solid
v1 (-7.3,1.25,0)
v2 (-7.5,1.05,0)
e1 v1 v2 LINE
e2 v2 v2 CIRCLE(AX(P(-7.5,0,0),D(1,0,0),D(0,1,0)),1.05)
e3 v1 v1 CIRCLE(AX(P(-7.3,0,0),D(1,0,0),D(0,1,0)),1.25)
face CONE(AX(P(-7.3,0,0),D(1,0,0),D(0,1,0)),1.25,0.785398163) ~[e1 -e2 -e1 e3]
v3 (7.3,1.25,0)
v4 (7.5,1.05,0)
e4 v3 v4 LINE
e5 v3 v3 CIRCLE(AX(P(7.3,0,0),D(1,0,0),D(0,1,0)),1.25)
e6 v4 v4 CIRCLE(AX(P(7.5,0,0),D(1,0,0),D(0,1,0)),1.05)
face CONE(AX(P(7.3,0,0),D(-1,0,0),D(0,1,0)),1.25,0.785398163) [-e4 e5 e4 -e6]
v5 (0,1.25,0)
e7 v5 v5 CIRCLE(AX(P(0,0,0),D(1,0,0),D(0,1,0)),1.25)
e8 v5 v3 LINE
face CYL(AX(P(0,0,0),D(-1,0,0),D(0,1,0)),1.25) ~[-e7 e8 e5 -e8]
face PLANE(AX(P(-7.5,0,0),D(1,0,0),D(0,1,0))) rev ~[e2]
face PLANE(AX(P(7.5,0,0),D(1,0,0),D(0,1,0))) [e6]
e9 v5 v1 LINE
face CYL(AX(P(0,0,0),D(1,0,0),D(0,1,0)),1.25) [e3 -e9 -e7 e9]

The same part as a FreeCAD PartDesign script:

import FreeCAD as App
import Part
import Sketcher
Q = App.Units.Quantity


def edges_at(feature, points):
    """Names of the edges that pass closest to the given points."""
    edges = feature.Shape.Edges
    near = lambda p: min(range(len(edges)), key=lambda i: edges[i].distToShape(Part.Vertex(*p))[0])
    return sorted({f"Edge{near(p) + 1}" for p in points})

doc = App.newDocument("Part")
params = doc.addObject("Spreadsheet::Sheet", "Params")
for row, (alias, value) in enumerate([
    ("sketch1_diameter", "2.5 mm"),
    ("pad1_length", "15 mm"),
    ("chamfer_size", "0.2 mm"),
], start=1):
    params.set(f"A{row}", alias)
    params.set(f"B{row}", "=" + value)
    params.setAlias(f"B{row}", alias)

body = doc.addObject("PartDesign::Body", "Body")

# Sketch on YZ plane
sketch1 = body.newObject("Sketcher::SketchObject", "Sketch")
sketch1.AttachmentSupport = (doc.getObject("YZ_Plane"), [""])
sketch1.MapMode = "FlatFace"
sketch1.addGeometry(Part.Circle(App.Vector(0, 0, 0), App.Vector(0, 0, 1), 1.2), False)
sketch1.addConstraint(Sketcher.Constraint("Coincident", 0, 3, -1, 1))
sketch1.addConstraint(Sketcher.Constraint("Diameter", 0, Q("2.5 mm")))
sketch1.setExpression("Constraints[1]", "Params.sketch1_diameter")
pad1 = body.newObject("PartDesign::Pad", "Pad")
pad1.Profile = sketch1
pad1.setExpression("Length", "Params.pad1_length")
pad1.Midplane = True
doc.recompute()

chamfer = body.newObject("PartDesign::Chamfer", "Chamfer")
chamfer.Base = (pad1, edges_at(pad1, [(7.5, -1.25, 0), (-7.5, -1.25, 0)]))
chamfer.setExpression("Size", "Params.chamfer_size")

doc.recompute()
